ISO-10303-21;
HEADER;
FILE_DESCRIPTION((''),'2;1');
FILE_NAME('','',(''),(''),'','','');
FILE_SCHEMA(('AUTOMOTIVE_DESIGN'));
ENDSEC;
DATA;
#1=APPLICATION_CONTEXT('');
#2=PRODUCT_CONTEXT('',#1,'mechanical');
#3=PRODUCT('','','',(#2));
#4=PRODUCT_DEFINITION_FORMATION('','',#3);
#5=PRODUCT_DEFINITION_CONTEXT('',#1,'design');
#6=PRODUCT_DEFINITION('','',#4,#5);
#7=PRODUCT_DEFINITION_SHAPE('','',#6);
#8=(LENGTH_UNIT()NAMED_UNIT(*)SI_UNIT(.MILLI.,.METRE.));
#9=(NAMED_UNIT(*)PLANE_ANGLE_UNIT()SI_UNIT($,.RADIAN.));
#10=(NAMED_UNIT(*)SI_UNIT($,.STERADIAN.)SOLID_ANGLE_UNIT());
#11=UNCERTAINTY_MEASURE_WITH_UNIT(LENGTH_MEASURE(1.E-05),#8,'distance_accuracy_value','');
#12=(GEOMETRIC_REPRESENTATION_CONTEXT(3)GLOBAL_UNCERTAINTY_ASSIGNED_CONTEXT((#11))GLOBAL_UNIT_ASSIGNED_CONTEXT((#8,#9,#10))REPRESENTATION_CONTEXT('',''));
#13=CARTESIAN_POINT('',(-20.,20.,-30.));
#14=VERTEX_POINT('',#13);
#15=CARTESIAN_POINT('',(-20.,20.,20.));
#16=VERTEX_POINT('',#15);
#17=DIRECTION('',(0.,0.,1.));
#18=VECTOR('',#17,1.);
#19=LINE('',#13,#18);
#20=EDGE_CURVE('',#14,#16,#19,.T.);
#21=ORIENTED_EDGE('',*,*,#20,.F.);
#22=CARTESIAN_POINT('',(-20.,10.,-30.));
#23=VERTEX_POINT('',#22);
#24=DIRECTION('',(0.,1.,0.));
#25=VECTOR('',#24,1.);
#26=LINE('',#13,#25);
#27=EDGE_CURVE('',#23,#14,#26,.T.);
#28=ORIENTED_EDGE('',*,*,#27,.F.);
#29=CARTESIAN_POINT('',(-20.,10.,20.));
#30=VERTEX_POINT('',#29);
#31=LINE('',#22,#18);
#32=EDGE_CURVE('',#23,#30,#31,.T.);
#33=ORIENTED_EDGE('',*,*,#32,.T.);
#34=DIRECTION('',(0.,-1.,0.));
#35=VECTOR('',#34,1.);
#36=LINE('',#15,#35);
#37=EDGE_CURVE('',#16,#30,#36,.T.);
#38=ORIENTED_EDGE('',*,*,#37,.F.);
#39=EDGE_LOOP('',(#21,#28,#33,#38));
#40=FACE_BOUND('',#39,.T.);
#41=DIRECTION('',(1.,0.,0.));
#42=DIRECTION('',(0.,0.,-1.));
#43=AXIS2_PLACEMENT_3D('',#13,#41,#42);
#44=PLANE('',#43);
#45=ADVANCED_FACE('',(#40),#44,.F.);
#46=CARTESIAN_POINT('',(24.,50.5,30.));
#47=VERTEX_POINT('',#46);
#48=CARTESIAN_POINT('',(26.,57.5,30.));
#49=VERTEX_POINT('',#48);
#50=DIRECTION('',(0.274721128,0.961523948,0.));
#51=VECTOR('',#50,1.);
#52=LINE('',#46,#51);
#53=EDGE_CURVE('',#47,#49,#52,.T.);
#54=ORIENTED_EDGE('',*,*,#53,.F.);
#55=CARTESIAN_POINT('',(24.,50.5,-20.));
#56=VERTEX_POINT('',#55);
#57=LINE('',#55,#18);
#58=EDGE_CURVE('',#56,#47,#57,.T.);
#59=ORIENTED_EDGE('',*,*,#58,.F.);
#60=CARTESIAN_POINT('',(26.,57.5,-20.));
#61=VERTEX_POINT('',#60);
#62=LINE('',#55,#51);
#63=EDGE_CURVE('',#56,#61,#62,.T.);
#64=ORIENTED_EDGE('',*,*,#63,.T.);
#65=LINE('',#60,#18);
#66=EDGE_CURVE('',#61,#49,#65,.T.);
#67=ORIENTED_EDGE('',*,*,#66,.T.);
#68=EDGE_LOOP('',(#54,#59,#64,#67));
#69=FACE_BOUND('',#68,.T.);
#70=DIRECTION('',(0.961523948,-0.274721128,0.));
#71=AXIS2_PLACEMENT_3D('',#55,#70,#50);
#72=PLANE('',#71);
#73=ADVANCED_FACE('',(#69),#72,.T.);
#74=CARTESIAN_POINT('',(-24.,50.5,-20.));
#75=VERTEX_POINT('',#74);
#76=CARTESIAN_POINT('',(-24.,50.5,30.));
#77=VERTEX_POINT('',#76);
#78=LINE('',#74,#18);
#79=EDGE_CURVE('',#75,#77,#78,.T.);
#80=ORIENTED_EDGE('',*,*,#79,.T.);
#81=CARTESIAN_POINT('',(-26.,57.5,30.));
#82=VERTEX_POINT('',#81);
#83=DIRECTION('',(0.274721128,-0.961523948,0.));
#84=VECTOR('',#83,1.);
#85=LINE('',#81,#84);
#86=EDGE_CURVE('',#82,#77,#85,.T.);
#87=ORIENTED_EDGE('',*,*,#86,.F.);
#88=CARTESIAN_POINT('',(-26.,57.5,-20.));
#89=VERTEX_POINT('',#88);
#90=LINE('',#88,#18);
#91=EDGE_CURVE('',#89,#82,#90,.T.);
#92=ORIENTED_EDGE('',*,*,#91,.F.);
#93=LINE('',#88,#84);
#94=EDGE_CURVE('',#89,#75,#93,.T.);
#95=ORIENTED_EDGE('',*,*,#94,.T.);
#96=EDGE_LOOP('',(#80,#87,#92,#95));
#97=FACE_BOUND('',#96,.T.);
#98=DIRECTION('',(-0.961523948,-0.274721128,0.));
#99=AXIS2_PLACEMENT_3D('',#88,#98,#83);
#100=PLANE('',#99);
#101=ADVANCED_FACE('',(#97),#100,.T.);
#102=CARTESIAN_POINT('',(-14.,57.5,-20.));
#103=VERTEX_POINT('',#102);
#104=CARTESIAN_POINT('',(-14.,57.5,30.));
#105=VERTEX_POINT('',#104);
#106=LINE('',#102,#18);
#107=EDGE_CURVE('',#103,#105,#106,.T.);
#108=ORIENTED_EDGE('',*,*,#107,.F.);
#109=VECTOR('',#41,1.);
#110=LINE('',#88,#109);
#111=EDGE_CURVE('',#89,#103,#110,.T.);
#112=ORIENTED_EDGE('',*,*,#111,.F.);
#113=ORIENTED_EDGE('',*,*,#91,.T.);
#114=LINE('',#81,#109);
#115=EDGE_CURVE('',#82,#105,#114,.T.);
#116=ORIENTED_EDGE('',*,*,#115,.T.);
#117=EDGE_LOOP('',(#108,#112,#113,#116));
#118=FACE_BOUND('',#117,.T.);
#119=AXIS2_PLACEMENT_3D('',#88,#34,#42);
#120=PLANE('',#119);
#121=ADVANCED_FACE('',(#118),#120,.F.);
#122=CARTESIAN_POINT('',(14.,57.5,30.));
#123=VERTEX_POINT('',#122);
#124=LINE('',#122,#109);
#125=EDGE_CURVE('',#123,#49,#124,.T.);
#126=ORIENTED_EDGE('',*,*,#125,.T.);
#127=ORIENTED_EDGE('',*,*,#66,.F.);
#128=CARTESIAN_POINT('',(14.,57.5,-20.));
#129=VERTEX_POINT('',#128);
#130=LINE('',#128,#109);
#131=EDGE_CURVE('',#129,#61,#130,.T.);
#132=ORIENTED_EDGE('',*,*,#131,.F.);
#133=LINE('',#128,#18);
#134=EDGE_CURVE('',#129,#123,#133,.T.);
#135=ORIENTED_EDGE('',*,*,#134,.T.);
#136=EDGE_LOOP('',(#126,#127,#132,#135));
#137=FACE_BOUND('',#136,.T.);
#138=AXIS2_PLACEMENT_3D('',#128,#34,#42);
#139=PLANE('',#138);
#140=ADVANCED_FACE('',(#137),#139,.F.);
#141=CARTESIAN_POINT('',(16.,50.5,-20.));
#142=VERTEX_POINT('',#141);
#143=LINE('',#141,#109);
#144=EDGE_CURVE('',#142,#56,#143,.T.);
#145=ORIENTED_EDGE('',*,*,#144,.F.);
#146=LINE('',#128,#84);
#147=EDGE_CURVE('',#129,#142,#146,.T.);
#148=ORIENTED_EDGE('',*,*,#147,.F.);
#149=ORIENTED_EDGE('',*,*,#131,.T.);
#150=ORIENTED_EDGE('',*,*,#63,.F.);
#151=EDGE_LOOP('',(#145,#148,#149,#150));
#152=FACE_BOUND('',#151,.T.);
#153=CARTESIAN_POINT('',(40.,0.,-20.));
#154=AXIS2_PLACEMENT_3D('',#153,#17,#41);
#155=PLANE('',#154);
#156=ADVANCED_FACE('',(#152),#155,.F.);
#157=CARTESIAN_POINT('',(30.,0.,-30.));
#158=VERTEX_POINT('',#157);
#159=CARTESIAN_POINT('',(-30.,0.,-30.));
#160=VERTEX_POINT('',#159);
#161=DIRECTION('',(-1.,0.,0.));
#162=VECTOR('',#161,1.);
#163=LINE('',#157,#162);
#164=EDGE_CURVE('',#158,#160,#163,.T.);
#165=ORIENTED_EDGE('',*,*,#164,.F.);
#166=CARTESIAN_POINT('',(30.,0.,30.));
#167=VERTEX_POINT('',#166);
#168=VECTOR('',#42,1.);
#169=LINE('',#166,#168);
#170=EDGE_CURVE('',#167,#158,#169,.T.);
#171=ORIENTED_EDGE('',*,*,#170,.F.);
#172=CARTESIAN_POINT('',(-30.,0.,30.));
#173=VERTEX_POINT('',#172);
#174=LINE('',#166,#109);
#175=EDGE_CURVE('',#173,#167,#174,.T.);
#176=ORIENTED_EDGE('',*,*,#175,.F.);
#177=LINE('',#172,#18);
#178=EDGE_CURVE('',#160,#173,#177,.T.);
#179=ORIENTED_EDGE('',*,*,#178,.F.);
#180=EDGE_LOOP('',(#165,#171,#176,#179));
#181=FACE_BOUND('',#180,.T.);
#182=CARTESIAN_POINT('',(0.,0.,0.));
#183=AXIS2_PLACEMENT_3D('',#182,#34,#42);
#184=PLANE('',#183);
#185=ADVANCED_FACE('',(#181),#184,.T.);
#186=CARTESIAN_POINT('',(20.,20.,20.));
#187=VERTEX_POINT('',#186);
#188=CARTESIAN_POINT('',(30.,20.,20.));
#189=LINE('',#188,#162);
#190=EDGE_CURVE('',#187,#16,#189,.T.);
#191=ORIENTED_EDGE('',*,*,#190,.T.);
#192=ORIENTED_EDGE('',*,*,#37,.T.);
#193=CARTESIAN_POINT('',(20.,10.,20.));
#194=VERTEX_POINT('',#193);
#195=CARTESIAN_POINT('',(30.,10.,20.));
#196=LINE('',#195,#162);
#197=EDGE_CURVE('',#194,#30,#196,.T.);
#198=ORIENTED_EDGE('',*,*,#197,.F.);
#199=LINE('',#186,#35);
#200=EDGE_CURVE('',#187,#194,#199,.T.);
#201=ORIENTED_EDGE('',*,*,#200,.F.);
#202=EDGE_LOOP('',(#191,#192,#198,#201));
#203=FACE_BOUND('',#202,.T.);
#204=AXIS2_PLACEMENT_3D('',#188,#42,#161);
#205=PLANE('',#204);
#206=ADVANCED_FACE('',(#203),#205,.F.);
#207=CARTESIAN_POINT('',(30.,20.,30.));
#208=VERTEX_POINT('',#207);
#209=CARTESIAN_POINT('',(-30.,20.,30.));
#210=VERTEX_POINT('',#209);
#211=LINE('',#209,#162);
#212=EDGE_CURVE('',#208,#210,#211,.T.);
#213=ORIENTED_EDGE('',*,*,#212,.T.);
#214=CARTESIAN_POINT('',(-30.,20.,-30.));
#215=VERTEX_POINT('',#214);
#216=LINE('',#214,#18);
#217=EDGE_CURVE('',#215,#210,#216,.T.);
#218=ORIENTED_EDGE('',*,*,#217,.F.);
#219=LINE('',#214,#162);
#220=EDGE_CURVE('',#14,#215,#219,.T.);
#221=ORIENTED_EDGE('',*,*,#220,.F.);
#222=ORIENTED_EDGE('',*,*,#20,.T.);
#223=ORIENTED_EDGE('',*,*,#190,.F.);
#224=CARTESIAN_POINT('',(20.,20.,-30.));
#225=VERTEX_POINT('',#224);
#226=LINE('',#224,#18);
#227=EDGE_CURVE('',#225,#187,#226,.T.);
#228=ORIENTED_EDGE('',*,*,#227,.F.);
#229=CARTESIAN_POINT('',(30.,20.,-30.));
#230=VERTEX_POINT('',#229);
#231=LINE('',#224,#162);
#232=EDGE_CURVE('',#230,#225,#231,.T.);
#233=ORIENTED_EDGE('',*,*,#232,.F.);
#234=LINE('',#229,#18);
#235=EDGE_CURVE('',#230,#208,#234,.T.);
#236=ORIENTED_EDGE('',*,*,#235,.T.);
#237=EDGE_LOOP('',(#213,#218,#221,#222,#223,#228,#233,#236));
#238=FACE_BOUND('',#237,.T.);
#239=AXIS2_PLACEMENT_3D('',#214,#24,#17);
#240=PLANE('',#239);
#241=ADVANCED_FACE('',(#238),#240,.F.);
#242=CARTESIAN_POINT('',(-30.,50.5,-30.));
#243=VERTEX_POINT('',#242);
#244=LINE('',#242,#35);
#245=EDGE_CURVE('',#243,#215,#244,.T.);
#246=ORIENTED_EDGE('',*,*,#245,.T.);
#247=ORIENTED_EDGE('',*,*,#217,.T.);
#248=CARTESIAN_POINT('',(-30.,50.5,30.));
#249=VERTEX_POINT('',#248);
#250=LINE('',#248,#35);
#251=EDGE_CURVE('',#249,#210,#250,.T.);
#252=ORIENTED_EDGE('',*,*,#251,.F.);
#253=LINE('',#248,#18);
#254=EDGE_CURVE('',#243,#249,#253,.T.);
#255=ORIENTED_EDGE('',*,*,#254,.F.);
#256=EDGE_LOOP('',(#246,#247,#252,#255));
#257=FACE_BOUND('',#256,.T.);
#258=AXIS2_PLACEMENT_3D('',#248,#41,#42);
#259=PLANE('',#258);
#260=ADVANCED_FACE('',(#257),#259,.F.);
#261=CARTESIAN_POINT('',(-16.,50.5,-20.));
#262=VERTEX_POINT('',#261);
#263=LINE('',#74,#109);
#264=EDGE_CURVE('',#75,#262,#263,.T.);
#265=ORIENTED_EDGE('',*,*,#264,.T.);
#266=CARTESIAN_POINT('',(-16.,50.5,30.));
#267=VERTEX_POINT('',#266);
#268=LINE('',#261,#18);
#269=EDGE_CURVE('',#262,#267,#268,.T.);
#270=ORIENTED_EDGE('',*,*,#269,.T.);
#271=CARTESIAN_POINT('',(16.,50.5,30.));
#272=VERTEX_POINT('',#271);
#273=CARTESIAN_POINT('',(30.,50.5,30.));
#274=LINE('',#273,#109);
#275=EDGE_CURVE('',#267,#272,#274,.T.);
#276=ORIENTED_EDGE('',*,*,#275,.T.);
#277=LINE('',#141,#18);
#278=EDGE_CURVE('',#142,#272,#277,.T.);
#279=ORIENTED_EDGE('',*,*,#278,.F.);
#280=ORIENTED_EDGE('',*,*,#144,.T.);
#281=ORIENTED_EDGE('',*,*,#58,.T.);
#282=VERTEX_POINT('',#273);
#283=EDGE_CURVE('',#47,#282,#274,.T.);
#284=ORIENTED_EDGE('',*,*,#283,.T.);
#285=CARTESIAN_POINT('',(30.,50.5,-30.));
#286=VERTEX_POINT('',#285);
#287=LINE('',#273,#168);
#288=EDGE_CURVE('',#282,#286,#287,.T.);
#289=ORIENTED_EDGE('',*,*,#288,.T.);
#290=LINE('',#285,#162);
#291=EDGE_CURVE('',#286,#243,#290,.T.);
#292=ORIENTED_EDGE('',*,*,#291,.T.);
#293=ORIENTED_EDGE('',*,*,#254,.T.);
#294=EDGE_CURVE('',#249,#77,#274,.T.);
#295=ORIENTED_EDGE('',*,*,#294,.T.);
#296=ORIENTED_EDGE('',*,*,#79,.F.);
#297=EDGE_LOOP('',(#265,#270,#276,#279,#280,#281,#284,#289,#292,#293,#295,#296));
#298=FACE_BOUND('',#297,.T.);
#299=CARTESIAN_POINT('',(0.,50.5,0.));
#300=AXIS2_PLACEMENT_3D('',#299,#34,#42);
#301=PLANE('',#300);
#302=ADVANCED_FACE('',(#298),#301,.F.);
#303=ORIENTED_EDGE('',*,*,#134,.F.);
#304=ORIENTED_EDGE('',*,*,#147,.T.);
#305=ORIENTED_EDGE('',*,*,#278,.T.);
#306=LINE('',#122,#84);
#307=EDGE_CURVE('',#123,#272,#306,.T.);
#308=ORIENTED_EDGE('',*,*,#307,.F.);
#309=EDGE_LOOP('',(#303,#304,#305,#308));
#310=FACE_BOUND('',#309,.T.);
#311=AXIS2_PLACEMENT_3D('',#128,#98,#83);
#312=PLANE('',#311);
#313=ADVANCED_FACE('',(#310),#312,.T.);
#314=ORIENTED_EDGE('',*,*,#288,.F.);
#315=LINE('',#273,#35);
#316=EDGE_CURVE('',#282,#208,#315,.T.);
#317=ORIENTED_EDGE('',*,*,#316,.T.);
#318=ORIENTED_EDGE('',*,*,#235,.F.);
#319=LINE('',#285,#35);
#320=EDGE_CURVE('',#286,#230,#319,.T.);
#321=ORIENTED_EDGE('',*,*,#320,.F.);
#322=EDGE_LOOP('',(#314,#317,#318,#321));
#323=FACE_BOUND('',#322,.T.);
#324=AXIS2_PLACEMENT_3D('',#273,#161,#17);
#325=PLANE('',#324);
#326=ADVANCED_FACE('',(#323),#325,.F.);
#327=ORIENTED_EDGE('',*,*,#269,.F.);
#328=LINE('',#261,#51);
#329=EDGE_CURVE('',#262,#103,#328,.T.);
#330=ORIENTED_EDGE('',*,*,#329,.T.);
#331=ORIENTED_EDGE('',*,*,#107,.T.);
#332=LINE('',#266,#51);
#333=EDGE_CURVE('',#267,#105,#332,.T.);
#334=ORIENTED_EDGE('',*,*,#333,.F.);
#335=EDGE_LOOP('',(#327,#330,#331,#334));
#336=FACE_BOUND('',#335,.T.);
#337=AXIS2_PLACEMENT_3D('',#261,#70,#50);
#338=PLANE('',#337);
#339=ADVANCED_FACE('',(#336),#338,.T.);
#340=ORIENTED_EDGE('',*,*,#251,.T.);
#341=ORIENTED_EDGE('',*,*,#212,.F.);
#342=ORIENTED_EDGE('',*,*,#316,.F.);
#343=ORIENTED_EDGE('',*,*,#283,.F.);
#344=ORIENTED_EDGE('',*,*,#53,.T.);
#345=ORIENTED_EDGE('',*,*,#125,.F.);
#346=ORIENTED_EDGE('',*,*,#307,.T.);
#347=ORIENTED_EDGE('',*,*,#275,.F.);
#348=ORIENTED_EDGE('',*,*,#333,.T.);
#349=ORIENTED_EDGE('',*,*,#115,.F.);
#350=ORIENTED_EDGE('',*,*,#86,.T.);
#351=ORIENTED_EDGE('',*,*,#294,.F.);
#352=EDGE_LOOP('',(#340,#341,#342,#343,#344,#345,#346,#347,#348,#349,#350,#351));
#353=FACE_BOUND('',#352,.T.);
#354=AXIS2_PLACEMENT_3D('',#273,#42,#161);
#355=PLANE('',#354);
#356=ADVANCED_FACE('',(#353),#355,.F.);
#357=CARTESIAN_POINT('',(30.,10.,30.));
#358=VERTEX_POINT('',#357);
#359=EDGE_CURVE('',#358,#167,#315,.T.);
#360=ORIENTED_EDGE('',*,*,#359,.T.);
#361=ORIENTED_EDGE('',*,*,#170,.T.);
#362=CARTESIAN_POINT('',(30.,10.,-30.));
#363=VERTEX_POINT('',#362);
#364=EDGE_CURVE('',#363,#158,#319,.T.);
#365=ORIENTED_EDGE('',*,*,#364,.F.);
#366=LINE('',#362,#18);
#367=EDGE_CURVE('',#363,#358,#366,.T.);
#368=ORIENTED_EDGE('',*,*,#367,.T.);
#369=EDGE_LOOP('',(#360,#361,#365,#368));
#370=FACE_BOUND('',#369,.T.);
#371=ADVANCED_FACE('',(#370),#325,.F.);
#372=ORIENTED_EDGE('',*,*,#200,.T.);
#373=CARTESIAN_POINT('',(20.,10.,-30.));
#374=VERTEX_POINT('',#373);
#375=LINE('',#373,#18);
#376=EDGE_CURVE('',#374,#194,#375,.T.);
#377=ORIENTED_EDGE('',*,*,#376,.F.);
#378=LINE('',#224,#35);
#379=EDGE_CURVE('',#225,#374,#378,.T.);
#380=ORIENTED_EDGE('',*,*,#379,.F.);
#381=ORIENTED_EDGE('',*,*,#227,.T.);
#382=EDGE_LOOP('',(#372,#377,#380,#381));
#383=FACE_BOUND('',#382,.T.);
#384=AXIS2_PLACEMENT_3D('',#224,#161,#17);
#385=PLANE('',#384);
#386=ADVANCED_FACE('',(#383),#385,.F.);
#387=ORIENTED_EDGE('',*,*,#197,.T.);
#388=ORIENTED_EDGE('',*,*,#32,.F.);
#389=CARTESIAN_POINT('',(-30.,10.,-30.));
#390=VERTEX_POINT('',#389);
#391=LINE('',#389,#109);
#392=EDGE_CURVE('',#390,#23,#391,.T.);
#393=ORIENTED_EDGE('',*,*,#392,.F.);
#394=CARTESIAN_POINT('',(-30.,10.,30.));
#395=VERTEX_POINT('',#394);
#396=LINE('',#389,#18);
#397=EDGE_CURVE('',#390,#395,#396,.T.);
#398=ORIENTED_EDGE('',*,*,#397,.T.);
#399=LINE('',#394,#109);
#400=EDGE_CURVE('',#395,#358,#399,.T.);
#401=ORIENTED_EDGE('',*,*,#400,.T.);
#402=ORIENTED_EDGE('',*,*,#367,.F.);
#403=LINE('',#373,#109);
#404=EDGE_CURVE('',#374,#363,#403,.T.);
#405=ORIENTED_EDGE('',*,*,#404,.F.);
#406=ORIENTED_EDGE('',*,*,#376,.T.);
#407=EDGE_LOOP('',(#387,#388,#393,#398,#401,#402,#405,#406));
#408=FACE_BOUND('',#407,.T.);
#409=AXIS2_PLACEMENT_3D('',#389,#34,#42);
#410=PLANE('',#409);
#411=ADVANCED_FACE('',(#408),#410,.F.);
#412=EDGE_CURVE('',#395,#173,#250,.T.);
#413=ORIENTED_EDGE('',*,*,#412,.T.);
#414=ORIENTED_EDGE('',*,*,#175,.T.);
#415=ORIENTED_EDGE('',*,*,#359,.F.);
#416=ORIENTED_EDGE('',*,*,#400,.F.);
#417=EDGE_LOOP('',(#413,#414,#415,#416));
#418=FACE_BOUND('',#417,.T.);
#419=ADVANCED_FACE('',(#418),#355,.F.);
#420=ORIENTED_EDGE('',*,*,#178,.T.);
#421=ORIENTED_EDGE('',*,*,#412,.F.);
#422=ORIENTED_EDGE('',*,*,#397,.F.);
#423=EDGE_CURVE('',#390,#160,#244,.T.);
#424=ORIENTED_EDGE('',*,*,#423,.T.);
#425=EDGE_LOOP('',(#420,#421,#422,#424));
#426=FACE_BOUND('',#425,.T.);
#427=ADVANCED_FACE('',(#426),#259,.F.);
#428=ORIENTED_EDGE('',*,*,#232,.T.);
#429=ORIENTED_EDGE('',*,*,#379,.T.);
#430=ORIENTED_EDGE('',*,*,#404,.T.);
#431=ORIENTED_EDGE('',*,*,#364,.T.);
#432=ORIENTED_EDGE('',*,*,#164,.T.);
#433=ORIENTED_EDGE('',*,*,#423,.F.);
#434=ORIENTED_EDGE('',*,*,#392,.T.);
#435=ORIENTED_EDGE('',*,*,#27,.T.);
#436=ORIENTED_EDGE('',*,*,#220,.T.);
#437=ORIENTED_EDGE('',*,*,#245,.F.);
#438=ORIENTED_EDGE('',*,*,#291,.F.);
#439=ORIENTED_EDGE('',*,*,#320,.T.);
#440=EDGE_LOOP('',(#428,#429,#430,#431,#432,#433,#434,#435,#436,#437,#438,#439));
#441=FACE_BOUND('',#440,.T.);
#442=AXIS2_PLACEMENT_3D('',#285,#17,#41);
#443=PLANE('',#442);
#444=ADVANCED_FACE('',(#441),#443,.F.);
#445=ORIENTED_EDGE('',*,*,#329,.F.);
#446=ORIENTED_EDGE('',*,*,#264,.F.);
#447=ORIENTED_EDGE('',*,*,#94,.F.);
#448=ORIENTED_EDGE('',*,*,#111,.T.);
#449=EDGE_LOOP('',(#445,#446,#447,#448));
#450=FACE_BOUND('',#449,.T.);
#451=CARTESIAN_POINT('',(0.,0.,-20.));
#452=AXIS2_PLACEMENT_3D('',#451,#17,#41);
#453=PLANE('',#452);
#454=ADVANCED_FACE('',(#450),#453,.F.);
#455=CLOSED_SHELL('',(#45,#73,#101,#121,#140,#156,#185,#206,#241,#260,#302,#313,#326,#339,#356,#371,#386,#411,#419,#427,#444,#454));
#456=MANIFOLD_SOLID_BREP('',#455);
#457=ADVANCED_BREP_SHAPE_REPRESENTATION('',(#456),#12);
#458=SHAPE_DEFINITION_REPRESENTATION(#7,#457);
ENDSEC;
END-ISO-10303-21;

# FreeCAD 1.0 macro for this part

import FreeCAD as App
import Part
import Sketcher

V = App.Vector


def add_polygon(sketch, points):
    """Adds a closed chain of lines whose ends are joined by coincident constraints."""
    first, n = sketch.GeometryCount, len(points)
    for a, b in zip(points, points[1:] + points[:1]):
        sketch.addGeometry(Part.LineSegment(App.Vector(*a, 0), App.Vector(*b, 0)), False)
    for i in range(n):
        sketch.addConstraint(Sketcher.Constraint("Coincident", first + i, 2, first + (i + 1) % n, 1))

doc = App.newDocument("Part")
body = doc.addObject("PartDesign::Body", "Body")

# Sketch on XZ plane
sketch1 = body.newObject("Sketcher::SketchObject", "Sketch")
sketch1.AttachmentSupport = (doc.getObject("XZ_Plane"), [""])
sketch1.MapMode = "FlatFace"
add_polygon(sketch1, [(-30, -30), (-30, 30), (30, 30), (30, -30)])  # lines 0-3
sketch1.addConstraint([
    Sketcher.Constraint("Vertical", 0),
    Sketcher.Constraint("Horizontal", 1),
    Sketcher.Constraint("Vertical", 2),
    Sketcher.Constraint("Horizontal", 3),
    Sketcher.Constraint("Symmetric", 0, 2, 2, 2, -1, 1),
    Sketcher.Constraint("Equal", 3, 0),
    Sketcher.Constraint("DistanceX", 1, 1, 1, 2, 60.0),
])
pad1 = body.newObject("PartDesign::Pad", "Pad")
pad1.Profile = sketch1
pad1.Length = 50.5
pad1.Reversed = True

# Sketch on XY plane
sketch2 = body.newObject("Sketcher::SketchObject", "Sketch001")
sketch2.AttachmentSupport = (doc.getObject("XY_Plane"), [""])
sketch2.MapMode = "FlatFace"
sketch2.AttachmentOffset = App.Placement(V(0, 0, 30), App.Rotation())
add_polygon(sketch2, [(-14, 58), (-26, 58), (-24, 50), (-16, 50)])  # lines 0-3
sketch2.addConstraint([
    Sketcher.Constraint("Horizontal", 0),
    Sketcher.Constraint("Horizontal", 2),
    Sketcher.Constraint("Equal", 1, 3),
    Sketcher.Constraint("DistanceX", 0, 2, 0, 1, 12.0),
    Sketcher.Constraint("DistanceX", 2, 1, 2, 2, 8.0),
    Sketcher.Constraint("DistanceX", 0, 2, -1, 1, 26.0),
    Sketcher.Constraint("DistanceY", 1, 2, 0, 2, 7.0),
    Sketcher.Constraint("DistanceY", -1, 1, 0, 2, 57.5),
])
pad2 = body.newObject("PartDesign::Pad", "Pad001")
pad2.Profile = sketch2
pad2.Length = 50
pad2.Reversed = True
doc.recompute()

linearpattern = body.newObject("PartDesign::LinearPattern", "LinearPattern")
linearpattern.Originals = [pad2]
linearpattern.Direction = (doc.getObject("X_Axis"), [""])
linearpattern.Mode = "offset"
linearpattern.Offset = 40
linearpattern.Occurrences = 2
body.Tip = linearpattern

# Sketch on XY plane
sketch3 = body.newObject("Sketcher::SketchObject", "Sketch002")
sketch3.AttachmentSupport = (doc.getObject("XY_Plane"), [""])
sketch3.MapMode = "FlatFace"
sketch3.AttachmentOffset = App.Placement(V(0, 0, 30), App.Rotation())
add_polygon(sketch3, [(-30, 20), (-30, 10), (-20, 10), (-20, 20)])  # lines 0-3
sketch3.addConstraint([
    Sketcher.Constraint("Vertical", 0),
    Sketcher.Constraint("Horizontal", 1),
    Sketcher.Constraint("Vertical", 2),
    Sketcher.Constraint("Horizontal", 3),
    Sketcher.Constraint("Equal", 3, 0),
    Sketcher.Constraint("DistanceX", 1, 1, 1, 2, 10.0),
    Sketcher.Constraint("DistanceX", 0, 2, -1, 1, 30.0),
    Sketcher.Constraint("DistanceY", -1, 1, 0, 2, 10.0),
])
pocket1 = body.newObject("PartDesign::Pocket", "Pocket")
pocket1.Profile = sketch3
pocket1.Type = "ThroughAll"
doc.recompute()

linearpattern2 = body.newObject("PartDesign::LinearPattern", "LinearPattern001")
linearpattern2.Originals = [pocket1]
linearpattern2.Direction = (doc.getObject("X_Axis"), [""])
linearpattern2.Mode = "offset"
linearpattern2.Offset = 50
linearpattern2.Occurrences = 2
body.Tip = linearpattern2
doc.recompute()

polarpattern = body.newObject("PartDesign::PolarPattern", "PolarPattern")
polarpattern.Originals = [pocket1]
polarpattern.Axis = (doc.getObject("Y_Axis"), [""])
polarpattern.Angle = 90
polarpattern.Occurrences = 2
body.Tip = polarpattern

doc.recompute()
